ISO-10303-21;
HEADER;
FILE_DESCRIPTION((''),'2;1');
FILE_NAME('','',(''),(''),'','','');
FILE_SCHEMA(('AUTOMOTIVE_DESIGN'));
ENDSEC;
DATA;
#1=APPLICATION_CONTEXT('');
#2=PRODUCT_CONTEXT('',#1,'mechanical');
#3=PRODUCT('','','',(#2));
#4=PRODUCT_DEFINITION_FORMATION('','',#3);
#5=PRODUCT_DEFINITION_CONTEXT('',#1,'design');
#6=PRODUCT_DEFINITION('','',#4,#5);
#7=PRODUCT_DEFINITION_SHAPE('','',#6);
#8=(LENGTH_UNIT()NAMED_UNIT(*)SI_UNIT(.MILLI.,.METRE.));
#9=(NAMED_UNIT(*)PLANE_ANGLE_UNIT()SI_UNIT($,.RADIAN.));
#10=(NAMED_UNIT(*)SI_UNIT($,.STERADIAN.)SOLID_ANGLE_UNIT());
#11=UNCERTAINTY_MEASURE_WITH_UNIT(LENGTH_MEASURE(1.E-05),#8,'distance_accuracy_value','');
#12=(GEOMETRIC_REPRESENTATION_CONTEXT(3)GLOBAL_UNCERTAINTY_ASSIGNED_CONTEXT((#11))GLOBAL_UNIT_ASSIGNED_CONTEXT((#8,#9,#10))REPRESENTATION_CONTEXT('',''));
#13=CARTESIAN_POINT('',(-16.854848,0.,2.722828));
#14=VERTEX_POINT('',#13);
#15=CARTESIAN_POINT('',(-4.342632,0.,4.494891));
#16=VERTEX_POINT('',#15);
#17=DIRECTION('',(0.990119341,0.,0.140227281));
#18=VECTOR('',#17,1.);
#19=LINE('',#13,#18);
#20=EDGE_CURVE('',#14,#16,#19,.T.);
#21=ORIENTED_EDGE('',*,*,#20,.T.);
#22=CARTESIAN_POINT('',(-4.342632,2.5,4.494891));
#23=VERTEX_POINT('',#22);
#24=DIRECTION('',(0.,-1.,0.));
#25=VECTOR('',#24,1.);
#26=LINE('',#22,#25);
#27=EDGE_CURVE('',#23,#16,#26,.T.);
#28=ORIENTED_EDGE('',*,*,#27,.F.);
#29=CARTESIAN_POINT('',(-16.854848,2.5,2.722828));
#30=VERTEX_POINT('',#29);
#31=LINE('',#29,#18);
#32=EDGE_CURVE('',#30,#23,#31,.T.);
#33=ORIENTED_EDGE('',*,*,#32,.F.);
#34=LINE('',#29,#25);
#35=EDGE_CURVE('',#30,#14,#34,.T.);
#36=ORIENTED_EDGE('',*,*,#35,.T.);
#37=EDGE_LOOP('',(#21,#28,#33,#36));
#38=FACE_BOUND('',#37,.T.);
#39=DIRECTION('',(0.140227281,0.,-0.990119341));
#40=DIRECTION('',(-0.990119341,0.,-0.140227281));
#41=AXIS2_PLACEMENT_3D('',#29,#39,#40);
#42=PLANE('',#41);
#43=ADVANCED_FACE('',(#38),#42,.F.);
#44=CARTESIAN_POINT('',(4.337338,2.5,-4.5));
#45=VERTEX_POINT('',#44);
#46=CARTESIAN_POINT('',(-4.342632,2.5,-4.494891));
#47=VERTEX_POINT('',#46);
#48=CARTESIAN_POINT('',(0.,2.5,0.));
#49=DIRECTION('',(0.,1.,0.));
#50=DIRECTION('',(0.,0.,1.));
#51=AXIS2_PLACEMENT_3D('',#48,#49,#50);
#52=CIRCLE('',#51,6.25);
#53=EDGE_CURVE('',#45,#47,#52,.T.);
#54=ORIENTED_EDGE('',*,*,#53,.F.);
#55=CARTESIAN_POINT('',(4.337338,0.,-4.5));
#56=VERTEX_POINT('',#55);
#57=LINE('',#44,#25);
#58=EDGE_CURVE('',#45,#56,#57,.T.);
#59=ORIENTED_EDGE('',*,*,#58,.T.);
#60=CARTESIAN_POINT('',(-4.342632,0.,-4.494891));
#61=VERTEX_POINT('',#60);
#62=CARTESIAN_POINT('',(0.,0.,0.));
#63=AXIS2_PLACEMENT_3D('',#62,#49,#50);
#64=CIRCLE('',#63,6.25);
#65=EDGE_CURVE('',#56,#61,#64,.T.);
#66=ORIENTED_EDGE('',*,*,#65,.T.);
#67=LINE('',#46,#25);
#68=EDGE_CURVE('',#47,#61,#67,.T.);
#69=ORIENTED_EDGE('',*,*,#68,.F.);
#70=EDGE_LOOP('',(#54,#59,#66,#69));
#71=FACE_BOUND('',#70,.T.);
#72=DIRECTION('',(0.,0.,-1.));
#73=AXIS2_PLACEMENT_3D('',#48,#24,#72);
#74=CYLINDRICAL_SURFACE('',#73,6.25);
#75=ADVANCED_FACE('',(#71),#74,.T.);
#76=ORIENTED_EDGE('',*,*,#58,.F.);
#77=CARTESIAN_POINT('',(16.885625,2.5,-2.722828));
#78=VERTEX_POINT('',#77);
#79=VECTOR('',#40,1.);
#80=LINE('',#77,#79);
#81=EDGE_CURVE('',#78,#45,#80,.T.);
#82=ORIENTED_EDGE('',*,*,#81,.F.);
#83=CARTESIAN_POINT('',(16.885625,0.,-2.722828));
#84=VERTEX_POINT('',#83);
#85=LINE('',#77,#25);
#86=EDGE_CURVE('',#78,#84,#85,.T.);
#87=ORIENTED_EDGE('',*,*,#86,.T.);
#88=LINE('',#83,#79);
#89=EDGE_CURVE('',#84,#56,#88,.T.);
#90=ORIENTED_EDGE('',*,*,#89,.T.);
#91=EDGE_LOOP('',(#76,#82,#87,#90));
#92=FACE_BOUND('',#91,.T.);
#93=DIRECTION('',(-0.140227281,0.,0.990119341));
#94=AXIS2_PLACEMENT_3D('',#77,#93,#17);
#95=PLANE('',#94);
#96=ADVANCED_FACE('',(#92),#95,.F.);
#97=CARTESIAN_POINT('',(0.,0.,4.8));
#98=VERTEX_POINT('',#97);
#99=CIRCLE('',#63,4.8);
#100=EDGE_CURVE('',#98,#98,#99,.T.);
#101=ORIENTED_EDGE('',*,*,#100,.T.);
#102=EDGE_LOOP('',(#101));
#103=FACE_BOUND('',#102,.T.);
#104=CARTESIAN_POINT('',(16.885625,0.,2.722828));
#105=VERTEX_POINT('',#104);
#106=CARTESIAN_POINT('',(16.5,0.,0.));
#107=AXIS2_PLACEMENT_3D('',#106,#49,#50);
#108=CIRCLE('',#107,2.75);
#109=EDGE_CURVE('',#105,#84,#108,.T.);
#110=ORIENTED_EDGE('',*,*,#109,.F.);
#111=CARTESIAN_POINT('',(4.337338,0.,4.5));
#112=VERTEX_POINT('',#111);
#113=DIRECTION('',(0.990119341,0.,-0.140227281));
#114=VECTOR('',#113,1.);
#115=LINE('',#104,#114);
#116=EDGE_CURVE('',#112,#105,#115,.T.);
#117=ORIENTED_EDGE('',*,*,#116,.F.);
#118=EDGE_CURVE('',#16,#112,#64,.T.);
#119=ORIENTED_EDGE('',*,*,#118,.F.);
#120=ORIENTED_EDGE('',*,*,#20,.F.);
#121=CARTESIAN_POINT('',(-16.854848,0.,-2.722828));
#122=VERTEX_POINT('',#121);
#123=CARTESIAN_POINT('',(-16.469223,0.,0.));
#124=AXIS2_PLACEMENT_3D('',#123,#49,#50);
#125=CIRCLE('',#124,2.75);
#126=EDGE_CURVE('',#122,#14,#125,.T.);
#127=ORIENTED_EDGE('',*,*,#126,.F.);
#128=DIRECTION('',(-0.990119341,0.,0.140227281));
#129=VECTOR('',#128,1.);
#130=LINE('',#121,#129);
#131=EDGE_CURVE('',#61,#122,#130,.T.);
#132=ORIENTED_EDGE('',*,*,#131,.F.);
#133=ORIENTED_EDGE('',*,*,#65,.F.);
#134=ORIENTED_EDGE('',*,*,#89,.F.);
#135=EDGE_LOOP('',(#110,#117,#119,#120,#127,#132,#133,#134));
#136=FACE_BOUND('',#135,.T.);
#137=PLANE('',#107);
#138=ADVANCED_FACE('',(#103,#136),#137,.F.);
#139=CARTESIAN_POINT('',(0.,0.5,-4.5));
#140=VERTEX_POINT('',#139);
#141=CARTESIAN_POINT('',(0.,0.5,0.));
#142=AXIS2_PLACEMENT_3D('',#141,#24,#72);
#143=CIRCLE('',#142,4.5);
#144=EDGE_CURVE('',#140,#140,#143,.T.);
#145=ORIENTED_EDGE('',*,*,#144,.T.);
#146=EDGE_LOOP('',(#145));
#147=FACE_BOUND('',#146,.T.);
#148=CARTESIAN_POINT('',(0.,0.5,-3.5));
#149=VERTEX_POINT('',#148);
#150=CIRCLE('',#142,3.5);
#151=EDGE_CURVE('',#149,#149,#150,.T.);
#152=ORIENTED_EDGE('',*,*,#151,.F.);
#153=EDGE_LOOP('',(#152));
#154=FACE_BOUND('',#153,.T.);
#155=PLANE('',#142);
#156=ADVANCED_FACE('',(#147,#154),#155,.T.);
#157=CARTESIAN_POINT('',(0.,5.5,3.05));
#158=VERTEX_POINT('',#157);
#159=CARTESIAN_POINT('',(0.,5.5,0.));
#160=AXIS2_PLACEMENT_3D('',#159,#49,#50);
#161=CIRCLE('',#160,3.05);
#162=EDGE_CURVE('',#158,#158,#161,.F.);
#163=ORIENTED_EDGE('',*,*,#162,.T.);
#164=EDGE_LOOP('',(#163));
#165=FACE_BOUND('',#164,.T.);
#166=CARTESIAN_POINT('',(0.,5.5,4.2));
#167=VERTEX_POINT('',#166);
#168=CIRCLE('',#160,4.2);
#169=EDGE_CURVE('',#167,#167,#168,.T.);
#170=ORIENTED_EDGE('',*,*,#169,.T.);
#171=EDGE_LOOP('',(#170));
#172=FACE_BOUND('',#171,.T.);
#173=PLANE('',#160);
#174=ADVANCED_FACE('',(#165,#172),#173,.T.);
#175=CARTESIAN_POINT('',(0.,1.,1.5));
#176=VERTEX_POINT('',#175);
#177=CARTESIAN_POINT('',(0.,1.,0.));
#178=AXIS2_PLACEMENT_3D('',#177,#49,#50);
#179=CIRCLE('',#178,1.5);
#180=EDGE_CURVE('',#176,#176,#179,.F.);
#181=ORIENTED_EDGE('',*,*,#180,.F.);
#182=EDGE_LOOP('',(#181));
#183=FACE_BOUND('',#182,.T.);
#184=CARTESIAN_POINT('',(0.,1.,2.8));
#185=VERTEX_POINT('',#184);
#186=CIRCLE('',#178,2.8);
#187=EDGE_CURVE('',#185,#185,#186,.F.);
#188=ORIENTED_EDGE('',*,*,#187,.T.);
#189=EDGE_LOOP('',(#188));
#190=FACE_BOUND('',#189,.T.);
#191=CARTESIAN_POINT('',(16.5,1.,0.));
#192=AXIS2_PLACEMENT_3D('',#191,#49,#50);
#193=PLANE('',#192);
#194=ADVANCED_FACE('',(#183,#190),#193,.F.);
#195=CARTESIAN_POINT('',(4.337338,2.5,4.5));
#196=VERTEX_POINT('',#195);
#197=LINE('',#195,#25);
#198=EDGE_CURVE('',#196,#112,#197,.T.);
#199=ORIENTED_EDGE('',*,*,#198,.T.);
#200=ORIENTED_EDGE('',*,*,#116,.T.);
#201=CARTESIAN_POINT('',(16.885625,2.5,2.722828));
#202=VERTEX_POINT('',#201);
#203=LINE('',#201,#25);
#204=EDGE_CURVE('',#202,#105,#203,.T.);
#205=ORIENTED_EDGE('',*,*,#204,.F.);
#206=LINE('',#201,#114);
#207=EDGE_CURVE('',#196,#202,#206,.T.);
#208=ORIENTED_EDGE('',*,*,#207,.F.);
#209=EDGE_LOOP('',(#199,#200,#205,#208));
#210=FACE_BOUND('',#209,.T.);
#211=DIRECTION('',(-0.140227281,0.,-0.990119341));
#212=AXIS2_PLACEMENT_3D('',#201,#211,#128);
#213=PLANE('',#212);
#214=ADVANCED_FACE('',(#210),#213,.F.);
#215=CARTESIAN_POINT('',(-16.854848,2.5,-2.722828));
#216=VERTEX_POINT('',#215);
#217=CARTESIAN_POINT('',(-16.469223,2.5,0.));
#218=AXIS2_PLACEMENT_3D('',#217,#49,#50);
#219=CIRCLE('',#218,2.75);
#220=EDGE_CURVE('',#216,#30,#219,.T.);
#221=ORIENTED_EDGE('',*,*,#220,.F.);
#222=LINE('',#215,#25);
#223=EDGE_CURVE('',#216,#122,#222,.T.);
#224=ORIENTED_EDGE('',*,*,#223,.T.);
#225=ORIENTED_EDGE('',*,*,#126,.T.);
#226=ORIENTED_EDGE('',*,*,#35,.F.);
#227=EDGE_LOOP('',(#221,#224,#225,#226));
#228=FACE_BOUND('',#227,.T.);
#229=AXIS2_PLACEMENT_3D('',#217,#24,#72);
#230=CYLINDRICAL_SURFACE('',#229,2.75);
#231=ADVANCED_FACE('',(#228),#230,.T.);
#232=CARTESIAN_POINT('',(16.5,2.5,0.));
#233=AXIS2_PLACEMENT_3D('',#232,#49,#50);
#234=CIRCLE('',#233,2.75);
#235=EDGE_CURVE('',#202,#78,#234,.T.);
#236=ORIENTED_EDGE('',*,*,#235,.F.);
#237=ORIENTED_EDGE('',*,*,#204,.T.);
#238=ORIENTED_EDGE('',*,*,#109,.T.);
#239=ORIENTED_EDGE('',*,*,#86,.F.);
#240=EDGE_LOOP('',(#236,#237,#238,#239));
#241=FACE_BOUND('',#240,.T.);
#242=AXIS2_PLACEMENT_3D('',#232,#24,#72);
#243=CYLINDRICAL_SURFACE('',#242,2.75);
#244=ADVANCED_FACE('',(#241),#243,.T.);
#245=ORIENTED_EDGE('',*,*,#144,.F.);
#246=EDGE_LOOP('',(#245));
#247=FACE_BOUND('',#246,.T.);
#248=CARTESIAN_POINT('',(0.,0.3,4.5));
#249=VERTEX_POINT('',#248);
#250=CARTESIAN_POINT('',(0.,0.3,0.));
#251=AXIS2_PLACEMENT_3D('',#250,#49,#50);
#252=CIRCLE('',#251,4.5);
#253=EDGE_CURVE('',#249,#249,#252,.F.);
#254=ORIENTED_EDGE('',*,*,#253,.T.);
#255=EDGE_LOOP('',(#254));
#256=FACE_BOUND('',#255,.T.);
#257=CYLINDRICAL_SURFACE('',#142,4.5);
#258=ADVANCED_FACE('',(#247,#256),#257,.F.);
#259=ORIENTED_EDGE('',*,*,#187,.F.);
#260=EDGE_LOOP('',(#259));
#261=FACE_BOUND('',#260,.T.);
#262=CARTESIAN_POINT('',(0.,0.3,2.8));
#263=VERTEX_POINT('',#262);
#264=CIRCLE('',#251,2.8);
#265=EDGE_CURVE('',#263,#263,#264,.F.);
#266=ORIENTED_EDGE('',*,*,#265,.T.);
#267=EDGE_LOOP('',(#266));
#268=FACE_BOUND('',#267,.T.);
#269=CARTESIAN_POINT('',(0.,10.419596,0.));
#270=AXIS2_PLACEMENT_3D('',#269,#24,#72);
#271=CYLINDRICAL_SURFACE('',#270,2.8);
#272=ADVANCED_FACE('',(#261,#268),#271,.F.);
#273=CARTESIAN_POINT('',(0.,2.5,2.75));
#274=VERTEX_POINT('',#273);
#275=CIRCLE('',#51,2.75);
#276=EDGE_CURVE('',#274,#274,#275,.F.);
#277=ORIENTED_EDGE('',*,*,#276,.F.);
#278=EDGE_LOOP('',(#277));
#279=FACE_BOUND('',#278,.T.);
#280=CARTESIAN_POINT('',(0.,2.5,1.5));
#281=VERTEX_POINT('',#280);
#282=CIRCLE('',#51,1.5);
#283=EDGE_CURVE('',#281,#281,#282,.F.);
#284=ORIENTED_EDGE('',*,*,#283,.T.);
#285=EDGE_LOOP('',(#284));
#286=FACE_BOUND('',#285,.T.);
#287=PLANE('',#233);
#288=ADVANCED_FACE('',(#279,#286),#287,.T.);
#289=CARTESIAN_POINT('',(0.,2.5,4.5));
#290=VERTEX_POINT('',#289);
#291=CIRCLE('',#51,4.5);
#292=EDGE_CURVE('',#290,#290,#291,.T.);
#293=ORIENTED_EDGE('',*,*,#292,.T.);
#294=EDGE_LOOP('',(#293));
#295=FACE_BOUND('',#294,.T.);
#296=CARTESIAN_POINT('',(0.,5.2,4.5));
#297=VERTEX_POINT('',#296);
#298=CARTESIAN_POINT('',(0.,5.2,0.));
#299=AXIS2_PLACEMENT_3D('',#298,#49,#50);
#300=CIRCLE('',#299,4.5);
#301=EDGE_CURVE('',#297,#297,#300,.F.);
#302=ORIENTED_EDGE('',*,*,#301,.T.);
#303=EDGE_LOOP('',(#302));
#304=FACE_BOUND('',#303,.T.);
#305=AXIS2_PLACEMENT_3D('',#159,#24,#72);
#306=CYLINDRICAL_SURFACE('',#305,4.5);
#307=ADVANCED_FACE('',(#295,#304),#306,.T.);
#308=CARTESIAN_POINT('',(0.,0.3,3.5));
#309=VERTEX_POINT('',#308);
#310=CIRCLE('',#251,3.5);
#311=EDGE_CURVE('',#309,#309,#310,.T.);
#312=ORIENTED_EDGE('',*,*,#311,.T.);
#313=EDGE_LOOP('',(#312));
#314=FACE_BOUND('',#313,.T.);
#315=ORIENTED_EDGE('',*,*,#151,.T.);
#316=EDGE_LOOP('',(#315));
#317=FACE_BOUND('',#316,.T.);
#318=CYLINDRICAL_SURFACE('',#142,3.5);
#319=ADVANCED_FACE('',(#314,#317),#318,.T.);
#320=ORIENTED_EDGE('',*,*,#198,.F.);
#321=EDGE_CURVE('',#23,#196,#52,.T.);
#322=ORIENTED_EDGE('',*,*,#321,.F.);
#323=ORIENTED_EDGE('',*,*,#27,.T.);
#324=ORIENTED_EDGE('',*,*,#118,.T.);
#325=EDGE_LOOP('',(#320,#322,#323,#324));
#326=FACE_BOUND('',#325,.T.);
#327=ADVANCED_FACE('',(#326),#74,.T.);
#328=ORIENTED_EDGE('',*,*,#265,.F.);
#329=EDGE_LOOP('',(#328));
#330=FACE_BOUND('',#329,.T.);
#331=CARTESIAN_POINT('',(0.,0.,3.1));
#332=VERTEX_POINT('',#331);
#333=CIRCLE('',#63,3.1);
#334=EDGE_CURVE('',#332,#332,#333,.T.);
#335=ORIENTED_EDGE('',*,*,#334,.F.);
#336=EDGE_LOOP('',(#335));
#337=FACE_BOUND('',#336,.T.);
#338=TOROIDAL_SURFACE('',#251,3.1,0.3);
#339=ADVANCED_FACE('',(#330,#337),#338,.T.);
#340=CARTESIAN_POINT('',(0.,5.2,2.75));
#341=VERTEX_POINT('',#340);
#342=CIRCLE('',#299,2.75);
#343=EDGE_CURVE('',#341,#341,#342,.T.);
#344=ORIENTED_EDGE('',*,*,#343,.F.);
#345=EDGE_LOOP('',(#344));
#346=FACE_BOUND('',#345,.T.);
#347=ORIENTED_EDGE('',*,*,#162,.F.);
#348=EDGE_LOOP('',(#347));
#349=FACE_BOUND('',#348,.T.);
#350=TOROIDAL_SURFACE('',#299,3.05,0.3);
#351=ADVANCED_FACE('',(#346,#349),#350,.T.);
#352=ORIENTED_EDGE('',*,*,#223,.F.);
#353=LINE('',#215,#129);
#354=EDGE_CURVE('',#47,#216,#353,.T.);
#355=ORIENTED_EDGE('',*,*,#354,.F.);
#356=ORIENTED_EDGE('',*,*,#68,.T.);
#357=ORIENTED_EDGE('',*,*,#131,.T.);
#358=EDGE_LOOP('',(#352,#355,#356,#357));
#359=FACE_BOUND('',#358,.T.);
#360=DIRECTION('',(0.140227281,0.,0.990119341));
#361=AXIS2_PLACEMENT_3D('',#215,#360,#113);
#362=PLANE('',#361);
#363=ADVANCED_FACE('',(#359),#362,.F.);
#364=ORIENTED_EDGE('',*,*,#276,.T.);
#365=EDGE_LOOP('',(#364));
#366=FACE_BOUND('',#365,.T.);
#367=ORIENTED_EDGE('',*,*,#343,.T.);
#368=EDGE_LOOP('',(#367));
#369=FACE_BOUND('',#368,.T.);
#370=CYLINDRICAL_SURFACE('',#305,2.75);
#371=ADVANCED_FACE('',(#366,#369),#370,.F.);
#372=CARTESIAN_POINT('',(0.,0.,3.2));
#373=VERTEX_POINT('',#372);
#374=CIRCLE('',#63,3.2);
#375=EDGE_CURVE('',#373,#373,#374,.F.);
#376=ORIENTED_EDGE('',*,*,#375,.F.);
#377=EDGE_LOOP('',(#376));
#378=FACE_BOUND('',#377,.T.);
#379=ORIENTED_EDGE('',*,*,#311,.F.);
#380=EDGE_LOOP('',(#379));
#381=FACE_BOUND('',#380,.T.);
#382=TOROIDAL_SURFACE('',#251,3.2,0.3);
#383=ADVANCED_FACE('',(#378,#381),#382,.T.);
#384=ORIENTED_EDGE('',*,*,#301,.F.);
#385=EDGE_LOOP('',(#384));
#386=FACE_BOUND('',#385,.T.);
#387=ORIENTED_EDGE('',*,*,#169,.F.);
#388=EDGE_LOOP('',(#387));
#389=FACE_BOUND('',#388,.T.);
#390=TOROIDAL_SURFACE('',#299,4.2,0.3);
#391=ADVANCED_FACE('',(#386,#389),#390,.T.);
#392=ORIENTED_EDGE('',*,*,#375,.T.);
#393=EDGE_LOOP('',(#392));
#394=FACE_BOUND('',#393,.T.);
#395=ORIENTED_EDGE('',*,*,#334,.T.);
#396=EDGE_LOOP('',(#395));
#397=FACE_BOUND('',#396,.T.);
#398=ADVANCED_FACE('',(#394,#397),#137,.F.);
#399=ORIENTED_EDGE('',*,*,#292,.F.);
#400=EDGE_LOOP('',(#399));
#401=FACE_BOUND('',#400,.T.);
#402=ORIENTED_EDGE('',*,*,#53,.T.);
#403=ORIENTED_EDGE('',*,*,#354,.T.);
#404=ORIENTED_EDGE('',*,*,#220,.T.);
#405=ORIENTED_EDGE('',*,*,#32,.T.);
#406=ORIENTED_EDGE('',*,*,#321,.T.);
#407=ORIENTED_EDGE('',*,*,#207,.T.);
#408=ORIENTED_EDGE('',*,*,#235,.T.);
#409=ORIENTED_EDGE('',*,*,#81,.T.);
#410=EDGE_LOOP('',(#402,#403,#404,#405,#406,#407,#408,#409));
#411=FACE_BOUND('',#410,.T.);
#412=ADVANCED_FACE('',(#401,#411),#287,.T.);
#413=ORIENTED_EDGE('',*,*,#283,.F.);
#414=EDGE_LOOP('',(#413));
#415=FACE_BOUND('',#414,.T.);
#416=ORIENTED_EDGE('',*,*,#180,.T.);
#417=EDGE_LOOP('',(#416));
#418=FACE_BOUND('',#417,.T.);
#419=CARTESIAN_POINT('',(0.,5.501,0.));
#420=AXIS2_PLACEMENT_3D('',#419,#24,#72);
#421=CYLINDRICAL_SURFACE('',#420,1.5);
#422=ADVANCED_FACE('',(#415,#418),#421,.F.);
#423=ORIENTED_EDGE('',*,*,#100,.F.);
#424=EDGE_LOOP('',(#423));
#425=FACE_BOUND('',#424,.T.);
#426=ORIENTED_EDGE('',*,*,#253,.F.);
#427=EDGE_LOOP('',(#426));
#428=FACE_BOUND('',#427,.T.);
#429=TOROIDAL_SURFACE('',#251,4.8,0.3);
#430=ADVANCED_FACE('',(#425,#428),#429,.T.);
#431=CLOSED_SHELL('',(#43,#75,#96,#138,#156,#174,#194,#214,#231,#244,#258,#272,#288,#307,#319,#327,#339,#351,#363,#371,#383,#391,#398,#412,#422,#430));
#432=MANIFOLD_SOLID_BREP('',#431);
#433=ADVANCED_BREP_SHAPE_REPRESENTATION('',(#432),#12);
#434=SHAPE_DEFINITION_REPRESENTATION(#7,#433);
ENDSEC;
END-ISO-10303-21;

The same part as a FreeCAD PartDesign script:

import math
import FreeCAD as App
import Part
import Sketcher

V = App.Vector


def edges_at(feature, points):
    """Names of the edges that pass closest to the given points."""
    edges = feature.Shape.Edges
    near = lambda p: min(range(len(edges)), key=lambda i: edges[i].distToShape(Part.Vertex(*p))[0])
    return sorted({f"Edge{near(p) + 1}" for p in points})

doc = App.newDocument("Part")
body = doc.addObject("PartDesign::Body", "Body")

# Sketch on XZ plane
sketch1 = body.newObject("Sketcher::SketchObject", "Sketch")
sketch1.AttachmentSupport = (doc.getObject("XZ_Plane"), [""])
sketch1.MapMode = "FlatFace"
sketch1.addGeometry([
    Part.LineSegment(V(16.9, -2.7, 0), V(4.3, -4.5, 0)),  # 0
    Part.ArcOfCircle(Part.Circle(V(0, 0, 0), V(0, 0, 1), 6.2), math.radians(-134), math.radians(-46)),  # 1
    Part.LineSegment(V(-4.3, -4.5, 0), V(-16.9, -2.7, 0)),  # 2
    Part.ArcOfCircle(Part.Circle(V(-16.5, 0, 0), V(0, 0, 1), 2.8), math.radians(98), math.radians(262)),  # 3
    Part.LineSegment(V(-16.9, 2.7, 0), V(-4.3, 4.5, 0)),  # 4
    Part.ArcOfCircle(Part.Circle(V(0, 0, 0), V(0, 0, 1), 6.2), math.radians(46), math.radians(134)),  # 5
    Part.LineSegment(V(4.3, 4.5, 0), V(16.9, 2.7, 0)),  # 6
    Part.ArcOfCircle(Part.Circle(V(16.5, 0, 0), V(0, 0, 1), 2.8), math.radians(-82), math.radians(82)),  # 7
], False)
sketch1.addConstraint([
    Sketcher.Constraint("Coincident", 0, 2, 1, 2),
    Sketcher.Constraint("Coincident", 1, 1, 2, 1),
    Sketcher.Constraint("Tangent", 2, 2, 3, 2),
    Sketcher.Constraint("Tangent", 3, 1, 4, 1),
    Sketcher.Constraint("Coincident", 4, 2, 5, 2),
    Sketcher.Constraint("Coincident", 5, 1, 6, 1),
    Sketcher.Constraint("Tangent", 6, 2, 7, 2),
    Sketcher.Constraint("Tangent", 7, 1, 0, 1),
    Sketcher.Constraint("Coincident", 1, 3, -1, 1),
    Sketcher.Constraint("Coincident", 5, 3, -1, 1),
    Sketcher.Constraint("Equal", 1, 5),
    Sketcher.Constraint("Equal", 3, 7),
    Sketcher.Constraint("Symmetric", 2, 2, 3, 1, -1),
    Sketcher.Constraint("Symmetric", 6, 2, 7, 1, -1),
    Sketcher.Constraint("Parallel", 0, 4),
    Sketcher.Constraint("Radius", 1, 6.25),
    Sketcher.Constraint("Radius", 3, 2.75),
    Sketcher.Constraint("DistanceY", 0, 2, 5, 1, 9.0),
    Sketcher.Constraint("DistanceX", -1, 1, 7, 3, 16.5),
    Sketcher.Constraint("Distance", 2, 12.637079),
])
pad1 = body.newObject("PartDesign::Pad", "Pad")
pad1.Profile = sketch1
pad1.Length = 2.5
pad1.Reversed = True

# Sketch on XZ plane
sketch2 = body.newObject("Sketcher::SketchObject", "Sketch001")
sketch2.AttachmentSupport = (doc.getObject("XZ_Plane"), [""])
sketch2.MapMode = "FlatFace"
sketch2.AttachmentOffset = App.Placement(V(0, 0, -2.5), App.Rotation())
sketch2.addGeometry([
    Part.Circle(V(0, 0, 0), V(0, 0, 1), 4.5),
    Part.Circle(V(0, 0, 0), V(0, 0, 1), 2.8),
], False)
sketch2.addConstraint([
    Sketcher.Constraint("Coincident", 0, 3, -1, 1),
    Sketcher.Constraint("Coincident", 1, 3, -1, 1),
    Sketcher.Constraint("Diameter", 0, 9.0),
    Sketcher.Constraint("Diameter", 1, 5.5),
])
pad2 = body.newObject("PartDesign::Pad", "Pad001")
pad2.Profile = sketch2
pad2.Length = 3
pad2.Reversed = True

# Sketch on XZ plane
sketch3 = body.newObject("Sketcher::SketchObject", "Sketch002")
sketch3.AttachmentSupport = (doc.getObject("XZ_Plane"), [""])
sketch3.MapMode = "FlatFace"
sketch3.addGeometry(Part.Circle(V(0, 0, 0), V(0, 0, 1), 1.5), False)
sketch3.addConstraint([
    Sketcher.Constraint("Coincident", 0, 3, -1, 1),
    Sketcher.Constraint("Diameter", 0, 3.0),
])
pocket1 = body.newObject("PartDesign::Pocket", "Pocket")
pocket1.Profile = sketch3
pocket1.Type = "UpToFirst"

# Sketch on XZ plane
sketch4 = body.newObject("Sketcher::SketchObject", "Sketch003")
sketch4.AttachmentSupport = (doc.getObject("XZ_Plane"), [""])
sketch4.MapMode = "FlatFace"
sketch4.addGeometry(Part.Circle(V(0, 0, 0), V(0, 0, 1), 2.8), False)
sketch4.addConstraint([
    Sketcher.Constraint("Coincident", 0, 3, -1, 1),
    Sketcher.Constraint("Diameter", 0, 5.6),
])
pocket2 = body.newObject("PartDesign::Pocket", "Pocket001")
pocket2.Profile = sketch4
pocket2.Length = 1

# Sketch on XZ plane
sketch5 = body.newObject("Sketcher::SketchObject", "Sketch004")
sketch5.AttachmentSupport = (doc.getObject("XZ_Plane"), [""])
sketch5.MapMode = "FlatFace"
sketch5.addGeometry([
    Part.Circle(V(0, 0, 0), V(0, 0, 1), 4.5),
    Part.Circle(V(0, 0, 0), V(0, 0, 1), 3.5),
], False)
sketch5.addConstraint([
    Sketcher.Constraint("Coincident", 0, 3, -1, 1),
    Sketcher.Constraint("Coincident", 1, 3, -1, 1),
    Sketcher.Constraint("Diameter", 0, 9.0),
    Sketcher.Constraint("Diameter", 1, 7.0),
])
pocket3 = body.newObject("PartDesign::Pocket", "Pocket002")
pocket3.Profile = sketch5
pocket3.Length = 0.5
doc.recompute()

fillet = body.newObject("PartDesign::Fillet", "Fillet")
fillet.Base = (pocket3, edges_at(pocket3, [
    (-4.5, 5.5, 0),
    (-2.75, 5.5, 0),
    (-2.8, 0, 0),
    (-4.5, 0, 0),
    (-3.5, 0, 0),
]))
fillet.Radius = 0.3

doc.recompute()
